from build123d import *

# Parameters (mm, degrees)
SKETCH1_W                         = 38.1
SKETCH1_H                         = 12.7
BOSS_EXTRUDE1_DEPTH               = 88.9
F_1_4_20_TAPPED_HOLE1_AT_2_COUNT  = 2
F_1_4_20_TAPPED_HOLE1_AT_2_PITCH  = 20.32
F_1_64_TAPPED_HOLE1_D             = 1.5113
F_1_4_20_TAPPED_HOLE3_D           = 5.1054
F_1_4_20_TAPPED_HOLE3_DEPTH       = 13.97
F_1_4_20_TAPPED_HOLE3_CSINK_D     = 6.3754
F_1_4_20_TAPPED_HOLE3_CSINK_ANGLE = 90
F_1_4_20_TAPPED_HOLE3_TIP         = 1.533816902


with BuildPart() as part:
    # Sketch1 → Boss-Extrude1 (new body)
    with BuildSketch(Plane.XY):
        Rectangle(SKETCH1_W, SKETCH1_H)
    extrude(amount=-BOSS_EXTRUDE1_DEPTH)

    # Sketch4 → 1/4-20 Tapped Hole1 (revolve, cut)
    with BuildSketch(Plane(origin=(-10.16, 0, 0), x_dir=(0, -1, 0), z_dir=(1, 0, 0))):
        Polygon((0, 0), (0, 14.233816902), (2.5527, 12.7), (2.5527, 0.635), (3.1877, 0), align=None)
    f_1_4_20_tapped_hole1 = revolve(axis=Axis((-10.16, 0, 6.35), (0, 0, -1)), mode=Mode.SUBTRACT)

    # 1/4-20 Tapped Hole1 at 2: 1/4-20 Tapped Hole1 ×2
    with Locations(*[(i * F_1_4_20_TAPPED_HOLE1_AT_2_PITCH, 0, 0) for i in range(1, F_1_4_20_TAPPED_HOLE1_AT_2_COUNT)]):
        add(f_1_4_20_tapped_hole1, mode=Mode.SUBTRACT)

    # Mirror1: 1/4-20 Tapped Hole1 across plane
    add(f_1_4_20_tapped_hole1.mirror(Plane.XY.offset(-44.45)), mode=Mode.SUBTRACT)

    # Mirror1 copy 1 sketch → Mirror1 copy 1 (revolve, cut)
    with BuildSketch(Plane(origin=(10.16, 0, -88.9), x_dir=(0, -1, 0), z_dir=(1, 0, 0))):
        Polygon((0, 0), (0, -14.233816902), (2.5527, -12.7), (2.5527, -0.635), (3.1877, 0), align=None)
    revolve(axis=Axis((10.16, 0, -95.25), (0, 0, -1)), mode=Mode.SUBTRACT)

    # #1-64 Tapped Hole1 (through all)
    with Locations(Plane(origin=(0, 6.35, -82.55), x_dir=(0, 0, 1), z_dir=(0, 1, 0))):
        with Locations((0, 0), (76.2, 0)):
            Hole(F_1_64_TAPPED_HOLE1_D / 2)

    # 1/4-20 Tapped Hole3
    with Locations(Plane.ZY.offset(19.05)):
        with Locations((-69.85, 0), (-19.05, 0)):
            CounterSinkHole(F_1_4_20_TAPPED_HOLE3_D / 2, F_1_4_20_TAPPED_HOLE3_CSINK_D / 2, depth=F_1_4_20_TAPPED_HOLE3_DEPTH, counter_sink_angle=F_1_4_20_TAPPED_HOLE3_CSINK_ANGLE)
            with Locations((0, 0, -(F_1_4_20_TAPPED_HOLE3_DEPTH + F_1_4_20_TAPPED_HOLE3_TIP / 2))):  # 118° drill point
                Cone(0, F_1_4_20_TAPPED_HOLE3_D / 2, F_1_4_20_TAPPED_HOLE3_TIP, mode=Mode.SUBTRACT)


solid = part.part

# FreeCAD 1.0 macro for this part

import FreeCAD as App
import Part
import Sketcher
from FreeCAD import Vector
Q = App.Units.Quantity


def add_polygon(sketch, points):
    """Adds a closed chain of lines whose ends are joined by coincident constraints."""
    first, n = sketch.GeometryCount, len(points)
    for a, b in zip(points, points[1:] + points[:1]):
        sketch.addGeometry(Part.LineSegment(App.Vector(*a, 0), App.Vector(*b, 0)), False)
    for i in range(n):
        sketch.addConstraint(Sketcher.Constraint("Coincident", first + i, 2, first + (i + 1) % n, 1))

doc = App.newDocument("Part")
body = doc.addObject("PartDesign::Body", "Body")

# Sketch on XY plane
sketch1 = body.newObject("Sketcher::SketchObject", "Sketch")
sketch1.AttachmentSupport = (doc.getObject("XY_Plane"), [""])
sketch1.MapMode = "FlatFace"
add_polygon(sketch1, [(-19, 6), (-19, -6), (19, -6), (19, 6)])  # lines 0-3
sketch1.addConstraint(Sketcher.Constraint("Vertical", 0))
sketch1.addConstraint(Sketcher.Constraint("Horizontal", 1))
sketch1.addConstraint(Sketcher.Constraint("Vertical", 2))
sketch1.addConstraint(Sketcher.Constraint("Horizontal", 3))
sketch1.addConstraint(Sketcher.Constraint("Symmetric", 0, 2, 2, 2, -1, 1))
sketch1.addConstraint(Sketcher.Constraint("DistanceX", 1, 1, 1, 2, Q("1.5 in")))
sketch1.addConstraint(Sketcher.Constraint("DistanceY", 0, 2, 0, 1, Q("0.5 in")))
pad1 = body.newObject("PartDesign::Pad", "Pad")
pad1.Profile = sketch1
pad1.Length = Q("3.5 in")
pad1.Reversed = True

# Sketch on YZ plane
sketch2 = body.newObject("Sketcher::SketchObject", "Sketch001")
sketch2.AttachmentSupport = (doc.getObject("YZ_Plane"), [""])
sketch2.MapMode = "FlatFace"
sketch2.AttachmentOffset = App.Placement(Vector(0, 0, -0.4 * 25.4), App.Rotation())
add_polygon(sketch2, [(0, -14.2), (0, 0), (-3.2, 0), (-2.6, -0.6), (-2.6, -12.7)])  # lines 0-4
sketch2.addConstraint(Sketcher.Constraint("Vertical", 0))
sketch2.addConstraint(Sketcher.Constraint("Horizontal", 1))
sketch2.addConstraint(Sketcher.Constraint("Vertical", 3))
sketch2.addConstraint(Sketcher.Constraint("Coincident", 0, 2, -1, 1))
sketch2.addConstraint(Sketcher.Constraint("Angle", 2, Q("-45 deg")))
sketch2.addConstraint(Sketcher.Constraint("Angle", 4, Q("-31 deg")))
sketch2.addConstraint(Sketcher.Constraint("DistanceY", 3, 2, -1, 1, Q("0.5 in")))
sketch2.addConstraint(Sketcher.Constraint("DistanceY", 3, 2, 3, 1, Q("0.475 in")))
sketch2.addConstraint(Sketcher.Constraint("DistanceX", 1, 2, 1, 1, Q("0.1255 in")))
groove = body.newObject("PartDesign::Groove", "Groove")
groove.Profile = sketch2
groove.ReferenceAxis = (sketch2, ["V_Axis"])
groove.Angle = 360
doc.recompute()

linearpattern = body.newObject("PartDesign::LinearPattern", "LinearPattern")
linearpattern.Originals = [groove]
linearpattern.Direction = (doc.getObject("X_Axis"), [""])
linearpattern.Mode = "offset"
linearpattern.Offset = Q("0.8 in")
linearpattern.Occurrences = 2
body.Tip = linearpattern
doc.recompute()

datumplane = body.newObject("PartDesign::Plane", "DatumPlane")
datumplane.AttachmentSupport = (doc.getObject("XY_Plane"), [""])
datumplane.MapMode = "FlatFace"
datumplane.AttachmentOffset = App.Placement(Vector(0, 0, -1.75 * 25.4), App.Rotation())
mirrored = body.newObject("PartDesign::Mirrored", "Mirrored")
mirrored.Originals = [groove]
mirrored.MirrorPlane = (datumplane, [""])
body.Tip = mirrored

# Sketch on YZ plane
sketch3 = body.newObject("Sketcher::SketchObject", "Sketch002")
sketch3.AttachmentSupport = (doc.getObject("YZ_Plane"), [""])
sketch3.MapMode = "FlatFace"
sketch3.AttachmentOffset = App.Placement(Vector(0, 0, 0.4 * 25.4), App.Rotation())
add_polygon(sketch3, [(0, -88.9), (0, -74.7), (-2.6, -76.2), (-2.6, -88.3), (-3.2, -88.9)])  # lines 0-4
sketch3.addConstraint(Sketcher.Constraint("Vertical", 0))
sketch3.addConstraint(Sketcher.Constraint("Vertical", 2))
sketch3.addConstraint(Sketcher.Constraint("Horizontal", 4))
sketch3.addConstraint(Sketcher.Constraint("PointOnObject", 0, 2, -2))
sketch3.addConstraint(Sketcher.Constraint("DistanceY", 1, 2, -1, 1, Q("3 in")))
sketch3.addConstraint(Sketcher.Constraint("Angle", 1, Q("-149 deg")))
sketch3.addConstraint(Sketcher.Constraint("Angle", 3, Q("-135 deg")))
sketch3.addConstraint(Sketcher.Constraint("DistanceY", 3, 2, -1, 1, Q("3.5 in")))
sketch3.addConstraint(Sketcher.Constraint("DistanceY", 2, 2, 2, 1, Q("0.475 in")))
sketch3.addConstraint(Sketcher.Constraint("DistanceX", 4, 1, 4, 2, Q("0.1255 in")))
groove2 = body.newObject("PartDesign::Groove", "Groove001")
groove2.Profile = sketch3
groove2.ReferenceAxis = (sketch3, ["V_Axis"])
groove2.Angle = 360

# Sketch on XZ plane
sketch4 = body.newObject("Sketcher::SketchObject", "Sketch003")
sketch4.AttachmentSupport = (doc.getObject("XZ_Plane"), [""])
sketch4.MapMode = "FlatFace"
sketch4.AttachmentOffset = App.Placement(Vector(0, 0, -0.25 * 25.4), App.Rotation())
sketch4.addGeometry(Part.Circle(Vector(0, -82.5, 0), Vector(0, 0, 1), 0.8), False)
sketch4.addGeometry(Part.Circle(Vector(0, -6.3, 0), Vector(0, 0, 1), 0.8), False)
sketch4.addConstraint(Sketcher.Constraint("Equal", 0, 1))
sketch4.addConstraint(Sketcher.Constraint("PointOnObject", 0, 3, -2))
sketch4.addConstraint(Sketcher.Constraint("PointOnObject", 1, 3, -2))
sketch4.addConstraint(Sketcher.Constraint("DistanceY", 0, 3, 1, 3, Q("3 in")))
sketch4.addConstraint(Sketcher.Constraint("Diameter", 0, Q("0.0595 in")))
sketch4.addConstraint(Sketcher.Constraint("DistanceY", 0, 3, -1, 1, Q("3.25 in")))
doc.recompute()
hole = body.newObject("PartDesign::Hole", "Hole")
hole.Profile = sketch4
hole.ThreadType = "None"
hole.Diameter = Q("0.0595 in")
hole.DepthType = "ThroughAll"
hole.Reversed = True

# Sketch on YZ plane
sketch5 = body.newObject("Sketcher::SketchObject", "Sketch004")
sketch5.AttachmentSupport = (doc.getObject("YZ_Plane"), [""])
sketch5.MapMode = "FlatFace"
sketch5.AttachmentOffset = App.Placement(Vector(0, 0, -0.75 * 25.4), App.Rotation())
sketch5.addGeometry(Part.Circle(Vector(0, -69.8, 0), Vector(0, 0, 1), 2.6), False)
sketch5.addGeometry(Part.Circle(Vector(0, -19.1, 0), Vector(0, 0, 1), 2.6), False)
sketch5.addConstraint(Sketcher.Constraint("Equal", 0, 1))
sketch5.addConstraint(Sketcher.Constraint("PointOnObject", 0, 3, -2))
sketch5.addConstraint(Sketcher.Constraint("PointOnObject", 1, 3, -2))
sketch5.addConstraint(Sketcher.Constraint("Diameter", 0, Q("0.201 in")))
sketch5.addConstraint(Sketcher.Constraint("DistanceY", 0, 3, 1, 3, Q("2 in")))
sketch5.addConstraint(Sketcher.Constraint("DistanceY", 0, 3, -1, 1, Q("2.75 in")))
doc.recompute()
hole2 = body.newObject("PartDesign::Hole", "Hole001")
hole2.Profile = sketch5
hole2.ThreadType = "None"
hole2.Diameter = Q("0.201 in")
hole2.DepthType = "Dimension"
hole2.Depth = Q("0.55 in")
hole2.DrillPoint = "Angled"
hole2.DrillPointAngle = 118
hole2.HoleCutType = "Countersink"
hole2.HoleCutDiameter = Q("0.251 in")
hole2.HoleCutCountersinkAngle = 90
hole2.Reversed = True

doc.recompute()
